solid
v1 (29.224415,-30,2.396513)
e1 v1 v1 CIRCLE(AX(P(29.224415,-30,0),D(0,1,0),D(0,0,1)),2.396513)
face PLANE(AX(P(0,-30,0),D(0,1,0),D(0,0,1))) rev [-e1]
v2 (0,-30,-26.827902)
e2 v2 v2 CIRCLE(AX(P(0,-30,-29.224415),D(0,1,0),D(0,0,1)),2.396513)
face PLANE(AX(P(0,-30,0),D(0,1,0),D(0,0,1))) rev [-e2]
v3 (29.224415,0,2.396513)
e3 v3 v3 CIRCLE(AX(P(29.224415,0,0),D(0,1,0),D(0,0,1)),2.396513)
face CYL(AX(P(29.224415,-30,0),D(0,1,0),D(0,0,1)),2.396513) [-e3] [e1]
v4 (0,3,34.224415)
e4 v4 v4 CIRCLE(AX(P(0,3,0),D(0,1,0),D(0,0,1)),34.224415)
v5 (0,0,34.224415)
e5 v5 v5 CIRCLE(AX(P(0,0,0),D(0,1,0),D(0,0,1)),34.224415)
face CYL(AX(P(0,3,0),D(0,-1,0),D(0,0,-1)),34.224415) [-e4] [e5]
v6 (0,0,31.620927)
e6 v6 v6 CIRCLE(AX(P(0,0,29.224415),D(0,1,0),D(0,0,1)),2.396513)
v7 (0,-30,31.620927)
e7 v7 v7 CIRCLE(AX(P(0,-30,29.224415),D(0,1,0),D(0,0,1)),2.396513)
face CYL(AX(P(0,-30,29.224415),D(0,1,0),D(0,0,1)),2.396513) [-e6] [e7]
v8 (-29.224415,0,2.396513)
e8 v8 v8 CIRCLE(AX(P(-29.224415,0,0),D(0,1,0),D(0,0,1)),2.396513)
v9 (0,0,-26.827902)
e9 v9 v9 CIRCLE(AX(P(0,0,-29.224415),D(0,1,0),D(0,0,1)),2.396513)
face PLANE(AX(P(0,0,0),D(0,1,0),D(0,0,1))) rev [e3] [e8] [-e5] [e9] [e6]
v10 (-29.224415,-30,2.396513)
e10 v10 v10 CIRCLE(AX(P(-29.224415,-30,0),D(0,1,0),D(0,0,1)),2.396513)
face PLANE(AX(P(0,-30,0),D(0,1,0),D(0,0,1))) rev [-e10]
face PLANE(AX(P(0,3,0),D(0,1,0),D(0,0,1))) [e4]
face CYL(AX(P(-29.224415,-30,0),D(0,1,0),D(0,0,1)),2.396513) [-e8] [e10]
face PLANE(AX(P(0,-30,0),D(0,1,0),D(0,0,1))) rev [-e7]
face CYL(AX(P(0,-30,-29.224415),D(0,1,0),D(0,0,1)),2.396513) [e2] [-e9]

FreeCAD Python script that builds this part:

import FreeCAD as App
import Part
import Sketcher
Q = App.Units.Quantity

doc = App.newDocument("Part")
params = doc.addObject("Spreadsheet::Sheet", "Params")
for row, (alias, value) in enumerate([
    ("pad1_length", "3 mm"),
    ("pad2_length", "30 mm"),
], start=1):
    params.set(f"A{row}", alias)
    params.set(f"B{row}", "=" + value)
    params.setAlias(f"B{row}", alias)

body = doc.addObject("PartDesign::Body", "Body")

sketch1 = body.newObject("Sketcher::SketchObject", "Sketch")
sketch1.AttachmentSupport = (doc.getObject("XZ_Plane"), [""])
sketch1.MapMode = "FlatFace"
sketch1.addGeometry(Part.Circle(App.Vector(0, 0, 0), App.Vector(0, 0, 1), 34.224415), False)
sketch1.addConstraint([
    Sketcher.Constraint("Coincident", 0, 3, -1, 1),
    Sketcher.Constraint("Diameter", 0, Q("68.448829 mm")),
])
pad1 = body.newObject("PartDesign::Pad", "Pad")
pad1.Profile = sketch1
pad1.setExpression("Length", "Params.pad1_length")
pad1.Reversed = True

sketch2 = body.newObject("Sketcher::SketchObject", "Sketch001")
sketch2.AttachmentSupport = (doc.getObject("XZ_Plane"), [""])
sketch2.MapMode = "FlatFace"
sketch2.addGeometry([
    Part.Circle(App.Vector(0, -29.224415, 0), App.Vector(0, 0, 1), 2.396513),
    Part.Circle(App.Vector(0, 29.224415, 0), App.Vector(0, 0, 1), 2.396513),
    Part.Circle(App.Vector(-29.224415, 0, 0), App.Vector(0, 0, 1), 2.396513),
    Part.Circle(App.Vector(29.224415, 0, 0), App.Vector(0, 0, 1), 2.396513),
], False)
sketch2.addConstraint([
    Sketcher.Constraint("Equal", 0, 1),
    Sketcher.Constraint("Equal", 1, 2),
    Sketcher.Constraint("Equal", 2, 3),
    Sketcher.Constraint("Symmetric", 0, 3, 1, 3, -1, 1),
    Sketcher.Constraint("Symmetric", 2, 3, 3, 3, -1, 1),
    Sketcher.Constraint("PointOnObject", 0, 3, -2),
    Sketcher.Constraint("PointOnObject", 2, 3, -1),
    Sketcher.Constraint("Diameter", 0, Q("4.793025 mm")),
    Sketcher.Constraint("DistanceY", 0, 3, 1, 3, Q("58.448829 mm")),
    Sketcher.Constraint("DistanceX", 2, 3, 3, 3, Q("58.448829 mm")),
])
pad2 = body.newObject("PartDesign::Pad", "Pad001")
pad2.Profile = sketch2
pad2.setExpression("Length", "Params.pad2_length")

doc.recompute()
